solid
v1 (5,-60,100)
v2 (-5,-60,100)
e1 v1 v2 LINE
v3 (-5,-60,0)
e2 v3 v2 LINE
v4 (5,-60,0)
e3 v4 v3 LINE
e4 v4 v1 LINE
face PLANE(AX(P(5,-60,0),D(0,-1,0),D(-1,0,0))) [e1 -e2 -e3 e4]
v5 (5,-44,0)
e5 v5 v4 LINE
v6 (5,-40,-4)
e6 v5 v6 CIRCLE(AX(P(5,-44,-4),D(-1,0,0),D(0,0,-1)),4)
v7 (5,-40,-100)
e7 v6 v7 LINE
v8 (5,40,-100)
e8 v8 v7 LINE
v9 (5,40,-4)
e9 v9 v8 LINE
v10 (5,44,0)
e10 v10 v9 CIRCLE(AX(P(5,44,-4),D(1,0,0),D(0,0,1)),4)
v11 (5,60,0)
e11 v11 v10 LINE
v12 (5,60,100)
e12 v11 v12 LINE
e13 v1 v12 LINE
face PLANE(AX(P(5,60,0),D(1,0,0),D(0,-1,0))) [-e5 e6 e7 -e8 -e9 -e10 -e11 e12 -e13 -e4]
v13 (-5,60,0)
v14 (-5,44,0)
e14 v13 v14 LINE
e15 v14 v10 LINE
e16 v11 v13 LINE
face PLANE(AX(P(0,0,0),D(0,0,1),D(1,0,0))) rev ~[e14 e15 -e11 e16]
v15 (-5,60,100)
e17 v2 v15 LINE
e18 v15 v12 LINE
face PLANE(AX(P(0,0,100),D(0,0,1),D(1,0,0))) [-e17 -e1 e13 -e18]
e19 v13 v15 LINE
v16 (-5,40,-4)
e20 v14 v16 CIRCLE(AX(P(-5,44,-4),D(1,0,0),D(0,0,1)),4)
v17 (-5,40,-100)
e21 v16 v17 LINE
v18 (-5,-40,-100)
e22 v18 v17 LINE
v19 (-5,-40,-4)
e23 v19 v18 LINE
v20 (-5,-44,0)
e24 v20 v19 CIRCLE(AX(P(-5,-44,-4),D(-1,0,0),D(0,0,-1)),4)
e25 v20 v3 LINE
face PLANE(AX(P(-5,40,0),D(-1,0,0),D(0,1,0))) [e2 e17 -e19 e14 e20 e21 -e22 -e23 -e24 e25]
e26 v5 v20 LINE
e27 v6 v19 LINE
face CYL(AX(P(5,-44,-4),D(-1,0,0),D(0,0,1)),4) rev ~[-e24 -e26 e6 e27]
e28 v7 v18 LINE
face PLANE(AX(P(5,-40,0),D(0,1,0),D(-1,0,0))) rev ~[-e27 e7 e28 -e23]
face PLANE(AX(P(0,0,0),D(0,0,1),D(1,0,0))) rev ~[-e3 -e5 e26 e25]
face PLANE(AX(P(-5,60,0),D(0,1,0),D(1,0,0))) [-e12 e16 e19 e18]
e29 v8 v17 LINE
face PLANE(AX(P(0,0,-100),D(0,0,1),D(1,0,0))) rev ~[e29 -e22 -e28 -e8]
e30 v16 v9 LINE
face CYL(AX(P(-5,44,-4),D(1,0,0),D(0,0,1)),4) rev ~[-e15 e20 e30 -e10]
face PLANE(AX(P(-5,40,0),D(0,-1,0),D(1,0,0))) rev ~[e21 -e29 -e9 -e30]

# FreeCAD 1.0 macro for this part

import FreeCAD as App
import Part
import Sketcher
Q = App.Units.Quantity


def edges_at(feature, points):
    """Names of the edges that pass closest to the given points."""
    edges = feature.Shape.Edges
    near = lambda p: min(range(len(edges)), key=lambda i: edges[i].distToShape(Part.Vertex(*p))[0])
    return sorted({f"Edge{near(p) + 1}" for p in points})


def add_polygon(sketch, points):
    """Adds a closed chain of lines whose ends are joined by coincident constraints."""
    first, n = sketch.GeometryCount, len(points)
    for a, b in zip(points, points[1:] + points[:1]):
        sketch.addGeometry(Part.LineSegment(App.Vector(*a, 0), App.Vector(*b, 0)), False)
    for i in range(n):
        sketch.addConstraint(Sketcher.Constraint("Coincident", first + i, 2, first + (i + 1) % n, 1))

doc = App.newDocument("Part")
params = doc.addObject("Spreadsheet::Sheet", "Params")
for row, (alias, value) in enumerate([
    ("sketch1_width", "10 mm"),
    ("sketch1_height", "120 mm"),
    ("pad1_length", "100 mm"),
    ("sketch2_width", "10 mm"),
    ("sketch2_height", "80 mm"),
    ("pad2_length", "100 mm"),
    ("fillet_radius", "4 mm"),
], start=1):
    params.set(f"A{row}", alias)
    params.set(f"B{row}", "=" + value)
    params.setAlias(f"B{row}", alias)

body = doc.addObject("PartDesign::Body", "Body")

# Sketch on XY plane
sketch1 = doc.addObject("Sketcher::SketchObject", "Sketch")
body.addObject(sketch1)
sketch1.AttachmentSupport = (doc.XY_Plane, [""])
sketch1.MapMode = "FlatFace"
add_polygon(sketch1, [(-5, 60), (-5, -60), (5, -60), (5, 60)])  # lines 0-3
sketch1.addConstraint(Sketcher.Constraint("Vertical", 0))
sketch1.addConstraint(Sketcher.Constraint("Horizontal", 1))
sketch1.addConstraint(Sketcher.Constraint("Vertical", 2))
sketch1.addConstraint(Sketcher.Constraint("Horizontal", 3))
sketch1.addConstraint(Sketcher.Constraint("Symmetric", 0, 2, 2, 2, -1, 1))
sketch1.addConstraint(Sketcher.Constraint("DistanceX", 1, 1, 1, 2, Q("10 mm")))
sketch1.addConstraint(Sketcher.Constraint("DistanceY", 0, 2, 0, 1, Q("120 mm")))
sketch1.setExpression("Constraints[9]", "Params.sketch1_width")
sketch1.setExpression("Constraints[10]", "Params.sketch1_height")
pad1 = doc.addObject("PartDesign::Pad", "Pad")
body.addObject(pad1)
pad1.Profile = sketch1
pad1.setExpression("Length", "Params.pad1_length")

# Sketch on XY plane
sketch2 = doc.addObject("Sketcher::SketchObject", "Sketch001")
body.addObject(sketch2)
sketch2.AttachmentSupport = (doc.XY_Plane, [""])
sketch2.MapMode = "FlatFace"
add_polygon(sketch2, [(-5, 40), (-5, -40), (5, -40), (5, 40)])  # lines 0-3
sketch2.addConstraint(Sketcher.Constraint("Vertical", 0))
sketch2.addConstraint(Sketcher.Constraint("Horizontal", 1))
sketch2.addConstraint(Sketcher.Constraint("Vertical", 2))
sketch2.addConstraint(Sketcher.Constraint("Horizontal", 3))
sketch2.addConstraint(Sketcher.Constraint("Symmetric", 0, 2, 2, 2, -1, 1))
sketch2.addConstraint(Sketcher.Constraint("DistanceX", 1, 1, 1, 2, Q("10 mm")))
sketch2.addConstraint(Sketcher.Constraint("DistanceY", 0, 2, 0, 1, Q("80 mm")))
sketch2.setExpression("Constraints[9]", "Params.sketch2_width")
sketch2.setExpression("Constraints[10]", "Params.sketch2_height")
pad2 = doc.addObject("PartDesign::Pad", "Pad001")
body.addObject(pad2)
pad2.Profile = sketch2
pad2.setExpression("Length", "Params.pad2_length")
pad2.Reversed = True
doc.recompute()

fillet = doc.addObject("PartDesign::Fillet", "Fillet")
body.addObject(fillet)
fillet.Base = (pad2, edges_at(pad2, [(0, 40, 0), (0, -40, 0)]))
fillet.setExpression("Radius", "Params.fillet_radius")

doc.recompute()
